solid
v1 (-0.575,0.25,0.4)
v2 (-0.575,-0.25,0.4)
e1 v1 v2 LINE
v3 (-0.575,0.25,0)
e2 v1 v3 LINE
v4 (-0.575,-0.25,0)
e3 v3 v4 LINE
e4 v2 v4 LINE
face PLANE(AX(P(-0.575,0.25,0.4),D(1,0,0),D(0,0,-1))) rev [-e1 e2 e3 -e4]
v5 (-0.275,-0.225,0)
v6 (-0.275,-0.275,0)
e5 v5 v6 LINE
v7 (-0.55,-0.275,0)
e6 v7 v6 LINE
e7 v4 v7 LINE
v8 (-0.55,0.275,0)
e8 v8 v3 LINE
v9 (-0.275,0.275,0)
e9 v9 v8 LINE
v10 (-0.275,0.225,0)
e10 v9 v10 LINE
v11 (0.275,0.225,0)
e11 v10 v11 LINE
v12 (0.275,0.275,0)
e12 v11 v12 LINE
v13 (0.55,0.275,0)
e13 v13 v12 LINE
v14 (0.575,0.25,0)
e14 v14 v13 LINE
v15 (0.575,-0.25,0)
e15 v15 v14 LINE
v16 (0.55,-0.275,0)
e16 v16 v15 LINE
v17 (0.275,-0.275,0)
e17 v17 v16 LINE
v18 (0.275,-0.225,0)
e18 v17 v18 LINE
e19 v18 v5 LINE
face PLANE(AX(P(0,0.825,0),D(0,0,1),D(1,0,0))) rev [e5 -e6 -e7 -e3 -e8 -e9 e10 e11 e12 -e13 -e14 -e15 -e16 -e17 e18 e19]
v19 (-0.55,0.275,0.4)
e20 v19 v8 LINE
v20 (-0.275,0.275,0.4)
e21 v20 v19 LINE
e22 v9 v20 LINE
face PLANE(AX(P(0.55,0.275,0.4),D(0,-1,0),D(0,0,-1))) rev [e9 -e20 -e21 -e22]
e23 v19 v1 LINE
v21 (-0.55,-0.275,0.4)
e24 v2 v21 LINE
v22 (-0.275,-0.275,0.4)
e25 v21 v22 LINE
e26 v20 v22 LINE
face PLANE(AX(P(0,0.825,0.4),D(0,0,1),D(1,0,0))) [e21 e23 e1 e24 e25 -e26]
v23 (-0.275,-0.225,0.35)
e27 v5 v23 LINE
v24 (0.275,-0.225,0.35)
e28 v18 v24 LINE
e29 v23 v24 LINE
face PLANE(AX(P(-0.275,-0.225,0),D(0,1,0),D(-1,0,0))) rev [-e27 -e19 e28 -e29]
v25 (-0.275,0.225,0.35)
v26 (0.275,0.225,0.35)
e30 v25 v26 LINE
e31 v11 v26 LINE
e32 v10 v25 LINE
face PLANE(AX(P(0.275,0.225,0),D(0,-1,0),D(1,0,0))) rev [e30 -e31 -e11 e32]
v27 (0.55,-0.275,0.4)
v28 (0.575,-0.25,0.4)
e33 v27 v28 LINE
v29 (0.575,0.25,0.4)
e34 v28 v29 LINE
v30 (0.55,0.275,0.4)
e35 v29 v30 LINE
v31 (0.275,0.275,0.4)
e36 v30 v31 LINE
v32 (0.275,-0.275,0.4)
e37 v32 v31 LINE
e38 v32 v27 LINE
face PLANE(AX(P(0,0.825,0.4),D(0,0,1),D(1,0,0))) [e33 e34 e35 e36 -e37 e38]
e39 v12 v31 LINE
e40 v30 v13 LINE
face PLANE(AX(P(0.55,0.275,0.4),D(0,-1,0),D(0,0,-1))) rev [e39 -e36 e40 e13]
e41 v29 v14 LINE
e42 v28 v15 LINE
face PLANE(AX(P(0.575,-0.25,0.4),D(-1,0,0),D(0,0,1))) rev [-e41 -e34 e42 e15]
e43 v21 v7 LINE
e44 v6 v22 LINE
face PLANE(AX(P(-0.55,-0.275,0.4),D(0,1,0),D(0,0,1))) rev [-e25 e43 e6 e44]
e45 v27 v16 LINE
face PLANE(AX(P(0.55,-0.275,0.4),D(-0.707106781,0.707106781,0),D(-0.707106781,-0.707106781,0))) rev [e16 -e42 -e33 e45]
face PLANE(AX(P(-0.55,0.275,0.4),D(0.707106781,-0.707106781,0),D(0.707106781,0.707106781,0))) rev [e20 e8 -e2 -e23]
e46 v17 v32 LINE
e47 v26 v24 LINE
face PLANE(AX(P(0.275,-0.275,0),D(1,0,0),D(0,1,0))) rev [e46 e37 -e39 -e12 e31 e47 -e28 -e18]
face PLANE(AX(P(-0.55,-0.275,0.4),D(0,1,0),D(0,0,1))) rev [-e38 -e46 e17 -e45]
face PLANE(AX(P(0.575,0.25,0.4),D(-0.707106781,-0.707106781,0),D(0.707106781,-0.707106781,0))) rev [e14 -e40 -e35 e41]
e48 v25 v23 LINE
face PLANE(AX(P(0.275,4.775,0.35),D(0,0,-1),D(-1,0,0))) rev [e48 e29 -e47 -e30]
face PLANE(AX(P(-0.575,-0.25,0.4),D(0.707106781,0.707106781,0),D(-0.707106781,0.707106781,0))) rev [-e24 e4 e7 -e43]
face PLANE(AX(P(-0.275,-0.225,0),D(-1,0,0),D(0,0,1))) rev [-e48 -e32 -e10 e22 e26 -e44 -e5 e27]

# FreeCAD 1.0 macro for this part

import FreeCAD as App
import Part
import Sketcher
from FreeCAD import Vector


def add_polygon(sketch, points):
    """Adds a closed chain of lines whose ends are joined by coincident constraints."""
    first, n = sketch.GeometryCount, len(points)
    for a, b in zip(points, points[1:] + points[:1]):
        sketch.addGeometry(Part.LineSegment(App.Vector(*a, 0), App.Vector(*b, 0)), False)
    for i in range(n):
        sketch.addConstraint(Sketcher.Constraint("Coincident", first + i, 2, first + (i + 1) % n, 1))

doc = App.newDocument("Part")
body = doc.addObject("PartDesign::Body", "Body")

# Sketch on XY plane
sketch1 = doc.addObject("Sketcher::SketchObject", "Sketch")
body.addObject(sketch1)
sketch1.AttachmentSupport = (doc.XY_Plane, [""])
sketch1.MapMode = "FlatFace"
add_polygon(sketch1, [(0.55, 0.275), (-0.55, 0.275), (-0.575, 0.25), (-0.575, -0.25), (-0.55, -0.275), (0.55, -0.275), (0.575, -0.25), (0.575, 0.25)])  # lines 0-7
sketch1.addConstraint(Sketcher.Constraint("Horizontal", 0))
sketch1.addConstraint(Sketcher.Constraint("Vertical", 2))
sketch1.addConstraint(Sketcher.Constraint("Horizontal", 4))
sketch1.addConstraint(Sketcher.Constraint("Vertical", 6))
sketch1.addConstraint(Sketcher.Constraint("Symmetric", 0, 2, 4, 2, -1, 1))
sketch1.addConstraint(Sketcher.Constraint("Symmetric", 1, 2, 5, 2, -1, 1))
sketch1.addConstraint(Sketcher.Constraint("Perpendicular", 1, 3))
sketch1.addConstraint(Sketcher.Constraint("Perpendicular", 5, 7))
sketch1.addConstraint(Sketcher.Constraint("Horizontal", 2, 2, 5, 2))
sketch1.addConstraint(Sketcher.Constraint("Horizontal", 1, 2, 6, 2))
sketch1.addConstraint(Sketcher.Constraint("Vertical", 0, 2, 3, 2))
sketch1.addConstraint(Sketcher.Constraint("DistanceX", 0, 2, 0, 1, 1.1))
sketch1.addConstraint(Sketcher.Constraint("DistanceY", 2, 2, 2, 1, 0.5))
sketch1.addConstraint(Sketcher.Constraint("DistanceY", 3, 2, 0, 2, 0.55))
pad1 = doc.addObject("PartDesign::Pad", "Pad")
body.addObject(pad1)
pad1.Profile = sketch1
pad1.Length = 0.4

# Sketch on XY plane
sketch2 = doc.addObject("Sketcher::SketchObject", "Sketch001")
body.addObject(sketch2)
sketch2.AttachmentSupport = (doc.XY_Plane, [""])
sketch2.MapMode = "FlatFace"
sketch2.AttachmentOffset = App.Placement(Vector(0, 0, 0.4), App.Rotation())
add_polygon(sketch2, [(-0.28, 0.28), (-0.28, 0.23), (0.28, 0.23), (0.28, 0.28)])  # lines 0-3
add_polygon(sketch2, [(-0.28, -0.23), (-0.28, -0.28), (0.28, -0.28), (0.28, -0.23)])  # lines 4-7
sketch2.addConstraint(Sketcher.Constraint("Vertical", 0))
sketch2.addConstraint(Sketcher.Constraint("Horizontal", 1))
sketch2.addConstraint(Sketcher.Constraint("Vertical", 2))
sketch2.addConstraint(Sketcher.Constraint("Horizontal", 3))
sketch2.addConstraint(Sketcher.Constraint("Vertical", 4))
sketch2.addConstraint(Sketcher.Constraint("Horizontal", 5))
sketch2.addConstraint(Sketcher.Constraint("Vertical", 6))
sketch2.addConstraint(Sketcher.Constraint("Horizontal", 7))
sketch2.addConstraint(Sketcher.Constraint("Symmetric", 2, 2, 4, 2, -1, 1))
sketch2.addConstraint(Sketcher.Constraint("Symmetric", 0, 2, 6, 2, -1, 1))
sketch2.addConstraint(Sketcher.Constraint("Vertical", 3, 2, 4, 2))
sketch2.addConstraint(Sketcher.Constraint("DistanceX", 1, 1, 1, 2, 0.55))
sketch2.addConstraint(Sketcher.Constraint("DistanceY", 0, 2, 0, 1, 0.05))
sketch2.addConstraint(Sketcher.Constraint("DistanceY", 4, 2, 0, 2, 0.5))
pocket1 = doc.addObject("PartDesign::Pocket", "Pocket")
body.addObject(pocket1)
pocket1.Profile = sketch2
pocket1.Type = "ThroughAll"

# Sketch on XZ plane
sketch3 = doc.addObject("Sketcher::SketchObject", "Sketch002")
body.addObject(sketch3)
sketch3.AttachmentSupport = (doc.XZ_Plane, [""])
sketch3.MapMode = "FlatFace"
sketch3.AttachmentOffset = App.Placement(Vector(0, 0, 0.225), App.Rotation())
add_polygon(sketch3, [(-0.28, 0.4), (-0.28, 0.35), (0.28, 0.35), (0.28, 0.4)])  # lines 0-3
sketch3.addConstraint(Sketcher.Constraint("Vertical", 0))
sketch3.addConstraint(Sketcher.Constraint("Horizontal", 1))
sketch3.addConstraint(Sketcher.Constraint("Vertical", 2))
sketch3.addConstraint(Sketcher.Constraint("Horizontal", 3))
sketch3.addConstraint(Sketcher.Constraint("DistanceX", 1, 1, 1, 2, 0.55))
sketch3.addConstraint(Sketcher.Constraint("DistanceY", 0, 2, 0, 1, 0.05))
sketch3.addConstraint(Sketcher.Constraint("DistanceY", -1, 1, 2, 2, 0.4))
sketch3.addConstraint(Sketcher.Constraint("DistanceX", 0, 2, -1, 1, 0.275))
pocket2 = doc.addObject("PartDesign::Pocket", "Pocket001")
body.addObject(pocket2)
pocket2.Profile = sketch3
pocket2.Length = 5

doc.recompute()
